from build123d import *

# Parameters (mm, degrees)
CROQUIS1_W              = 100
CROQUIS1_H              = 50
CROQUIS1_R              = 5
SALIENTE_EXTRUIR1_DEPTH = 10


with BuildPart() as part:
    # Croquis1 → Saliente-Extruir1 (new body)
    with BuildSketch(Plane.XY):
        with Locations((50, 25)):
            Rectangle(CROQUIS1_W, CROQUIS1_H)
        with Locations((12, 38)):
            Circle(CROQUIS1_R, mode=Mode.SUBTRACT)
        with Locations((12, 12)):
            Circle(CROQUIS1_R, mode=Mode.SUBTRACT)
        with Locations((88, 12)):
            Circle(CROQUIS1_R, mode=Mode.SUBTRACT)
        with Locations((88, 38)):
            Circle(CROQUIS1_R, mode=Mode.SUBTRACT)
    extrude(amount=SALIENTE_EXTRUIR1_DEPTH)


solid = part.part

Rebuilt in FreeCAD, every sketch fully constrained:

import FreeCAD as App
import Part
import Sketcher
Q = App.Units.Quantity


def add_polygon(sketch, points):
    """Adds a closed chain of lines whose ends are joined by coincident constraints."""
    first, n = sketch.GeometryCount, len(points)
    for a, b in zip(points, points[1:] + points[:1]):
        sketch.addGeometry(Part.LineSegment(App.Vector(*a, 0), App.Vector(*b, 0)), False)
    for i in range(n):
        sketch.addConstraint(Sketcher.Constraint("Coincident", first + i, 2, first + (i + 1) % n, 1))

doc = App.newDocument("Part")
body = doc.addObject("PartDesign::Body", "Body")

# Sketch on XY plane
sketch1 = body.newObject("Sketcher::SketchObject", "Sketch")
sketch1.AttachmentSupport = (doc.getObject("XY_Plane"), [""])
sketch1.MapMode = "FlatFace"
add_polygon(sketch1, [(0, 50), (0, 0), (100, 0), (100, 50)])  # lines 0-3
sketch1.addGeometry(Part.Circle(App.Vector(12, 12, 0), App.Vector(0, 0, 1), 5), False)  # 4
sketch1.addGeometry(Part.Circle(App.Vector(88, 12, 0), App.Vector(0, 0, 1), 5), False)  # 5
sketch1.addGeometry(Part.Circle(App.Vector(12, 38, 0), App.Vector(0, 0, 1), 5), False)  # 6
sketch1.addGeometry(Part.Circle(App.Vector(88, 38, 0), App.Vector(0, 0, 1), 5), False)  # 7
sketch1.addConstraint(Sketcher.Constraint("Vertical", 0))
sketch1.addConstraint(Sketcher.Constraint("Horizontal", 1))
sketch1.addConstraint(Sketcher.Constraint("Vertical", 2))
sketch1.addConstraint(Sketcher.Constraint("Horizontal", 3))
sketch1.addConstraint(Sketcher.Constraint("Coincident", 0, 2, -1, 1))
sketch1.addConstraint(Sketcher.Constraint("Equal", 4, 5))
sketch1.addConstraint(Sketcher.Constraint("Equal", 5, 6))
sketch1.addConstraint(Sketcher.Constraint("Equal", 6, 7))
sketch1.addConstraint(Sketcher.Constraint("Horizontal", 4, 3, 5, 3))
sketch1.addConstraint(Sketcher.Constraint("Horizontal", 6, 3, 7, 3))
sketch1.addConstraint(Sketcher.Constraint("Vertical", 4, 3, 6, 3))
sketch1.addConstraint(Sketcher.Constraint("Vertical", 5, 3, 7, 3))
sketch1.addConstraint(Sketcher.Constraint("Diameter", 4, Q("10 mm")))
sketch1.addConstraint(Sketcher.Constraint("DistanceX", 1, 1, 1, 2, Q("100 mm")))
sketch1.addConstraint(Sketcher.Constraint("DistanceY", 0, 2, 0, 1, Q("50 mm")))
sketch1.addConstraint(Sketcher.Constraint("DistanceX", -1, 1, 4, 3, Q("12 mm")))
sketch1.addConstraint(Sketcher.Constraint("DistanceY", -1, 1, 4, 3, Q("12 mm")))
sketch1.addConstraint(Sketcher.Constraint("DistanceX", -1, 1, 5, 3, Q("88 mm")))
sketch1.addConstraint(Sketcher.Constraint("DistanceY", -1, 1, 6, 3, Q("38 mm")))
pad1 = body.newObject("PartDesign::Pad", "Pad")
pad1.Profile = sketch1
pad1.Length = 10

doc.recompute()
